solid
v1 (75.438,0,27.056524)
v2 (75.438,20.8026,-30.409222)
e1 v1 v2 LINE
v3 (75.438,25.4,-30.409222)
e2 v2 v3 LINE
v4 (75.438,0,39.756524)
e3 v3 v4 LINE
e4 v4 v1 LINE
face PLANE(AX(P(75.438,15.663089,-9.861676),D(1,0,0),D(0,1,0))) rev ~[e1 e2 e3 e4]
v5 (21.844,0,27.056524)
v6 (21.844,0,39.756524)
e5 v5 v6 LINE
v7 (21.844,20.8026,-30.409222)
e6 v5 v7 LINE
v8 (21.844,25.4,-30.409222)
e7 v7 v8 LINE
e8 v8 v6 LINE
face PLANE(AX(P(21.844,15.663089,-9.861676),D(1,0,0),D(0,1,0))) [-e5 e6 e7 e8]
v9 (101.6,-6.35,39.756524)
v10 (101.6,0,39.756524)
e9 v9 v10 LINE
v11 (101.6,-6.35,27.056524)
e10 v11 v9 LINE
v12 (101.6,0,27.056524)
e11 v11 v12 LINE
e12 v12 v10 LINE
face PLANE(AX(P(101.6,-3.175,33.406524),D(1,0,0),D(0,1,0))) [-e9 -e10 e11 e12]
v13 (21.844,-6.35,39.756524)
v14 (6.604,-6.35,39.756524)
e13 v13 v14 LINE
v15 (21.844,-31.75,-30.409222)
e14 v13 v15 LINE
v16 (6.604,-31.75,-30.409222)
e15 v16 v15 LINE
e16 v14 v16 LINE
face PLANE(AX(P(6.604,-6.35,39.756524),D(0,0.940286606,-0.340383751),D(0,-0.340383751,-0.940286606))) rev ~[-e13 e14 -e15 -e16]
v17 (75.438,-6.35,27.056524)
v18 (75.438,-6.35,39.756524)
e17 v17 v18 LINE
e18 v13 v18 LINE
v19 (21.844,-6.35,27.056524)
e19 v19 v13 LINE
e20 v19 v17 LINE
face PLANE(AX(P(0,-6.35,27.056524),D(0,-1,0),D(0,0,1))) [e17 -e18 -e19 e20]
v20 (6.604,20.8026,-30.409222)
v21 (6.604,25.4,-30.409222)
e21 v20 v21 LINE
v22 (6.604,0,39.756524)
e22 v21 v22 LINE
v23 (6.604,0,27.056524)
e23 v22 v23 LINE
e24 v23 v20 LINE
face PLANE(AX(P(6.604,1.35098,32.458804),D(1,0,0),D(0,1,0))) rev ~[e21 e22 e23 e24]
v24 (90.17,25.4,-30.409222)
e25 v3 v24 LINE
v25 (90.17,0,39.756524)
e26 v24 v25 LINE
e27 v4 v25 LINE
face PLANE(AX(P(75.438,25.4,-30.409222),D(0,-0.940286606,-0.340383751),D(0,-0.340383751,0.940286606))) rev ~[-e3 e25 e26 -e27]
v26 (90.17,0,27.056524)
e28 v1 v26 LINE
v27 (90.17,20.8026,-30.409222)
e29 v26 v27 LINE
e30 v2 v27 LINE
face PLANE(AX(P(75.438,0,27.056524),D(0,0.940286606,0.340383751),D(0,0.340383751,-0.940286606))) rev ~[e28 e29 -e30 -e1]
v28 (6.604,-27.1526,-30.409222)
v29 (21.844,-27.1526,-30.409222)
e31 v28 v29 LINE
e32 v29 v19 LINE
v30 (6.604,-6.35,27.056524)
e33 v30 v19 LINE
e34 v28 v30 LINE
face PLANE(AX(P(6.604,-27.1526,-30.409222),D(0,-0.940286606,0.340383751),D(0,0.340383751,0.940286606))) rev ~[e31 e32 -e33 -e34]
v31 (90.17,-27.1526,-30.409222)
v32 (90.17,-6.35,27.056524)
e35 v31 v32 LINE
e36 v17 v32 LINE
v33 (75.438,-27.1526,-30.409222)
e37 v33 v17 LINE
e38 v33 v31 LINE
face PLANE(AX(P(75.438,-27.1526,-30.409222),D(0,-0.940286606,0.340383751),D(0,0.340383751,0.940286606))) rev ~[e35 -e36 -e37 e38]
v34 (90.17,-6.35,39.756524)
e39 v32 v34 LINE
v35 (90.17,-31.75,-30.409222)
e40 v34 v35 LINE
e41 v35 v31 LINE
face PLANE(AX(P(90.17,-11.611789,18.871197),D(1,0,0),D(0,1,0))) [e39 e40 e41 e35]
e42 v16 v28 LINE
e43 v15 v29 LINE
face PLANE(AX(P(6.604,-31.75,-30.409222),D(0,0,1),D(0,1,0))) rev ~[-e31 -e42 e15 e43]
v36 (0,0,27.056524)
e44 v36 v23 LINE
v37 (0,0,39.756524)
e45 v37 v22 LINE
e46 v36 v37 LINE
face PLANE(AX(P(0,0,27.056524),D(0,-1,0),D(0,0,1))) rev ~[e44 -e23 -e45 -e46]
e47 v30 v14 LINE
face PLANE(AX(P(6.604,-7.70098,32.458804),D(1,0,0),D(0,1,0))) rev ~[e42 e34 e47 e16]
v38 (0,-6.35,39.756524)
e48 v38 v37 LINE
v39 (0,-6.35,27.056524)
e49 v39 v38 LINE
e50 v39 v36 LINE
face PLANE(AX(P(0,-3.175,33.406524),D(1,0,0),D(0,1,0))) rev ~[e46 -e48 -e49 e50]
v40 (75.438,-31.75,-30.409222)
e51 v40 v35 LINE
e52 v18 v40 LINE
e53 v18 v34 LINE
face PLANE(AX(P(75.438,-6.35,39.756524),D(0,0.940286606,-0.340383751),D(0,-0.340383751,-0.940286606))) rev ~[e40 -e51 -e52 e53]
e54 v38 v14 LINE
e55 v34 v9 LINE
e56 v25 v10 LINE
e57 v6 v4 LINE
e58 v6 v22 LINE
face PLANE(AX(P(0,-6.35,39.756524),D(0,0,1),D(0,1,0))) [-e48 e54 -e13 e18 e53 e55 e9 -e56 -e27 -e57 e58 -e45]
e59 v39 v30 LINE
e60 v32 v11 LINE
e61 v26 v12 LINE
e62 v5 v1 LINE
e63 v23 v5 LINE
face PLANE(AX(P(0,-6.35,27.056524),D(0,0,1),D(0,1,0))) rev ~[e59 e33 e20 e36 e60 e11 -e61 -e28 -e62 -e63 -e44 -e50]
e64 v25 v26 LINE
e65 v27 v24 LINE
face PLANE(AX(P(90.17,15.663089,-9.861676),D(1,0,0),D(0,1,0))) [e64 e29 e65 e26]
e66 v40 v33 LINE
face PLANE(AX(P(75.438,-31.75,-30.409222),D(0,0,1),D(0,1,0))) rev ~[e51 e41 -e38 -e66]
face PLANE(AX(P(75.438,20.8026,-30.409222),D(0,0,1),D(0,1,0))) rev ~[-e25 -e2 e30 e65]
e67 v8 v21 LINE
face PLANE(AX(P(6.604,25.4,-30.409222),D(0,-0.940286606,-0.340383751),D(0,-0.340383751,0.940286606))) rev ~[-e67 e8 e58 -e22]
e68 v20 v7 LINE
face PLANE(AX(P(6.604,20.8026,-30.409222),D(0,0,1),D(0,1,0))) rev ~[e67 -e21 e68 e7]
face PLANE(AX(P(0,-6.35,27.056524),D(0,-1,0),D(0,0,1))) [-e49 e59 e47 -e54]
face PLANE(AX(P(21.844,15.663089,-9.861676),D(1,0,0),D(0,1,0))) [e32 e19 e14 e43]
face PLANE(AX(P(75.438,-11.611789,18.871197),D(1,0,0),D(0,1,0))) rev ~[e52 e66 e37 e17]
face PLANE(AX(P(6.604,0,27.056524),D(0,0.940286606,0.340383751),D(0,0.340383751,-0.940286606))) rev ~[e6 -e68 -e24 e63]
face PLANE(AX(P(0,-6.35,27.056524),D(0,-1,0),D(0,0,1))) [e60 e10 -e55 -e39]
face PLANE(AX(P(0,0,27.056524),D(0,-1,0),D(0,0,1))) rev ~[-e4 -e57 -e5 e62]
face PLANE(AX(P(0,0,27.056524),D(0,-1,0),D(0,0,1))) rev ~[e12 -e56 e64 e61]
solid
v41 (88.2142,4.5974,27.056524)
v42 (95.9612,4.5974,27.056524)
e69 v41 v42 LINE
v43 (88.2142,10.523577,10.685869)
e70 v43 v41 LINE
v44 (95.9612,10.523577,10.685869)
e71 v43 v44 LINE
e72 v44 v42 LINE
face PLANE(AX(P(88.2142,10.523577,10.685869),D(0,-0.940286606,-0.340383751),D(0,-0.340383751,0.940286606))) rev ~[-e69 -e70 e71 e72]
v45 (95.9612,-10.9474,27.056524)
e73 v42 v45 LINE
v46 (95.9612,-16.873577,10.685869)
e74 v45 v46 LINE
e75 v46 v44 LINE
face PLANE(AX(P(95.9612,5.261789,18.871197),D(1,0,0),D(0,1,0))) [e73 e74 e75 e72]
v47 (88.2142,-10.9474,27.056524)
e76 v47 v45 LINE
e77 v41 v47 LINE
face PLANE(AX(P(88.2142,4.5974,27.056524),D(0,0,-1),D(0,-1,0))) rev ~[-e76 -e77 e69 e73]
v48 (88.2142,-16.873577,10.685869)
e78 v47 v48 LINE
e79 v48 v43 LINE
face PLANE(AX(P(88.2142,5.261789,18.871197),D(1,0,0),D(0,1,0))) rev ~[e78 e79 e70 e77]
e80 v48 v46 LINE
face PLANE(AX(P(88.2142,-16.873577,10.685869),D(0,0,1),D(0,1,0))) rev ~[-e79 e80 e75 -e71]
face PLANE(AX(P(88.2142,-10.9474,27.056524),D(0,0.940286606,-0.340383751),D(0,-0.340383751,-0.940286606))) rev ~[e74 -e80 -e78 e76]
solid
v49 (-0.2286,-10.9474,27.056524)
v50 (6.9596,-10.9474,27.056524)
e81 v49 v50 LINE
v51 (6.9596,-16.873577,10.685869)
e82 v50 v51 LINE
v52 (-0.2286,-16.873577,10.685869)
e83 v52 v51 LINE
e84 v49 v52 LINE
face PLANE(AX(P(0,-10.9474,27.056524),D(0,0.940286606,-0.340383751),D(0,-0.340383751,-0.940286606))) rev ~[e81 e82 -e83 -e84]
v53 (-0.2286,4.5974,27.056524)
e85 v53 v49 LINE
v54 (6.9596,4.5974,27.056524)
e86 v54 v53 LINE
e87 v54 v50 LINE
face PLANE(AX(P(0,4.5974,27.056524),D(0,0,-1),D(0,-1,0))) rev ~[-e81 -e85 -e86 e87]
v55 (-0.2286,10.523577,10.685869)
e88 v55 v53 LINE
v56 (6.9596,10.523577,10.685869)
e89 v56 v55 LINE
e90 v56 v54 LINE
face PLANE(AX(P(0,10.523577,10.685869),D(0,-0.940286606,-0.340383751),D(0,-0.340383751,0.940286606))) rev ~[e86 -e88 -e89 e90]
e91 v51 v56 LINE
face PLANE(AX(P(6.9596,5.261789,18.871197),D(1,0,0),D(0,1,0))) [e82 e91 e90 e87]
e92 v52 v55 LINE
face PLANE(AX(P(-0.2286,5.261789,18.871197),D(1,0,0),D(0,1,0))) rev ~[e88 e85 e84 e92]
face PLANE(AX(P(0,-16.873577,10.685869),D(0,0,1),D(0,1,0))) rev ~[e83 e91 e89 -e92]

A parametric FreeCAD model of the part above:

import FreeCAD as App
import Part
import Sketcher
Q = App.Units.Quantity


def add_polygon(sketch, points):
    """Adds a closed chain of lines whose ends are joined by coincident constraints."""
    first, n = sketch.GeometryCount, len(points)
    for a, b in zip(points, points[1:] + points[:1]):
        sketch.addGeometry(Part.LineSegment(App.Vector(*a, 0), App.Vector(*b, 0)), False)
    for i in range(n):
        sketch.addConstraint(Sketcher.Constraint("Coincident", first + i, 2, first + (i + 1) % n, 1))

doc = App.newDocument("Part")
body = doc.addObject("PartDesign::Body", "Body")

# Sketch on YZ plane
sketch1 = body.newObject("Sketcher::SketchObject", "Sketch")
sketch1.AttachmentSupport = (doc.getObject("YZ_Plane"), [""])
sketch1.MapMode = "FlatFace"
add_polygon(sketch1, [(-6, 40), (-6, 27), (0, 27), (0, 40)])  # lines 0-3
sketch1.addConstraint(Sketcher.Constraint("Vertical", 0))
sketch1.addConstraint(Sketcher.Constraint("Horizontal", 1))
sketch1.addConstraint(Sketcher.Constraint("Vertical", 2))
sketch1.addConstraint(Sketcher.Constraint("Horizontal", 3))
sketch1.addConstraint(Sketcher.Constraint("PointOnObject", 1, 2, -2))
sketch1.addConstraint(Sketcher.Constraint("DistanceY", 0, 2, 0, 1, Q("0.5 in")))
sketch1.addConstraint(Sketcher.Constraint("DistanceX", 1, 1, 1, 2, Q("0.25 in")))
sketch1.addConstraint(Sketcher.Constraint("DistanceY", -1, 1, 0, 2, 27.056524))
pad1 = body.newObject("PartDesign::Pad", "Pad")
pad1.Profile = sketch1
pad1.Length = Q("4 in")

# Sketch on YZ plane
sketch2 = body.newObject("Sketcher::SketchObject", "Sketch001")
sketch2.AttachmentSupport = (doc.getObject("YZ_Plane"), [""])
sketch2.MapMode = "FlatFace"
sketch2.AttachmentOffset = App.Placement(App.Vector(0, 0, 0.26 * 25.4), App.Rotation())
add_polygon(sketch2, [(-6.3, 27.1), (-6.3, 39.8), (-31.8, -30.4), (-27.2, -30.4)])  # lines 0-3
add_polygon(sketch2, [(0, 39.8), (0, 27.1), (20.8, -30.4), (25.4, -30.4)])  # lines 4-7
sketch2.addConstraint(Sketcher.Constraint("Vertical", 0))
sketch2.addConstraint(Sketcher.Constraint("Horizontal", 2))
sketch2.addConstraint(Sketcher.Constraint("Vertical", 4))
sketch2.addConstraint(Sketcher.Constraint("Horizontal", 6))
sketch2.addConstraint(Sketcher.Constraint("PointOnObject", 4, 2, -2))
sketch2.addConstraint(Sketcher.Constraint("Parallel", 1, 3))
sketch2.addConstraint(Sketcher.Constraint("Parallel", 5, 7))
sketch2.addConstraint(Sketcher.Constraint("Horizontal", 3, 2, 4, 2))
sketch2.addConstraint(Sketcher.Constraint("Horizontal", 2, 2, 5, 2))
sketch2.addConstraint(Sketcher.Constraint("Horizontal", 0, 2, 7, 2))
sketch2.addConstraint(Sketcher.Constraint("Equal", 2, 6))
sketch2.addConstraint(Sketcher.Constraint("DistanceY", 0, 1, 0, 2, Q("0.5 in")))
sketch2.addConstraint(Sketcher.Constraint("DistanceX", -1, 1, 6, 2, Q("1 in")))
sketch2.addConstraint(Sketcher.Constraint("DistanceX", 2, 1, 2, 2, Q("0.181 in")))
sketch2.addConstraint(Sketcher.Constraint("DistanceX", 0, 2, -1, 1, Q("0.25 in")))
sketch2.addConstraint(Sketcher.Constraint("DistanceY", 1, 2, -1, 1, 30.409222))
pad2 = body.newObject("PartDesign::Pad", "Pad001")
pad2.Profile = sketch2
pad2.Length = Q("0.56 in")

# Sketch on YZ plane
sketch3 = body.newObject("Sketcher::SketchObject", "Sketch002")
sketch3.AttachmentSupport = (doc.getObject("YZ_Plane"), [""])
sketch3.MapMode = "FlatFace"
sketch3.AttachmentOffset = App.Placement(App.Vector(0, 0, 2.97 * 25.4), App.Rotation())
add_polygon(sketch3, [(20.8, -30.4), (25.4, -30.4), (0, 39.8), (0, 27.1)])  # lines 0-3
add_polygon(sketch3, [(-6.3, 27.1), (-6.3, 39.8), (-31.8, -30.4), (-27.2, -30.4)])  # lines 4-7
sketch3.addConstraint(Sketcher.Constraint("Horizontal", 0))
sketch3.addConstraint(Sketcher.Constraint("Vertical", 2))
sketch3.addConstraint(Sketcher.Constraint("Vertical", 4))
sketch3.addConstraint(Sketcher.Constraint("Horizontal", 6))
sketch3.addConstraint(Sketcher.Constraint("PointOnObject", 1, 2, -2))
sketch3.addConstraint(Sketcher.Constraint("Parallel", 1, 3))
sketch3.addConstraint(Sketcher.Constraint("Parallel", 5, 7))
sketch3.addConstraint(Sketcher.Constraint("Horizontal", 1, 2, 4, 2))
sketch3.addConstraint(Sketcher.Constraint("Horizontal", 3, 2, 5, 2))
sketch3.addConstraint(Sketcher.Constraint("Horizontal", 2, 2, 7, 2))
sketch3.addConstraint(Sketcher.Constraint("Equal", 0, 6))
sketch3.addConstraint(Sketcher.Constraint("DistanceY", 2, 2, 2, 1, Q("0.5 in")))
sketch3.addConstraint(Sketcher.Constraint("DistanceX", -1, 1, 0, 2, Q("1 in")))
sketch3.addConstraint(Sketcher.Constraint("DistanceX", 0, 1, 0, 2, Q("0.181 in")))
sketch3.addConstraint(Sketcher.Constraint("DistanceX", 4, 2, -1, 1, Q("0.25 in")))
sketch3.addConstraint(Sketcher.Constraint("DistanceY", 0, 2, -1, 1, 30.409222))
pad3 = body.newObject("PartDesign::Pad", "Pad002")
pad3.Profile = sketch3
pad3.Length = Q("0.58 in")

# Sketch on YZ plane
sketch4 = body.newObject("Sketcher::SketchObject", "Sketch003")
sketch4.AttachmentSupport = (doc.getObject("YZ_Plane"), [""])
sketch4.MapMode = "FlatFace"
sketch4.AttachmentOffset = App.Placement(App.Vector(0, 0, 0.26 * 25.4), App.Rotation())
add_polygon(sketch4, [(20.8, -30.4), (25.4, -30.4), (0, 39.8), (-6.3, 39.8), (-31.8, -30.4), (-27.2, -30.4), (-6.3, 27.1), (0, 27.1)])  # lines 0-7
sketch4.addConstraint(Sketcher.Constraint("Horizontal", 0))
sketch4.addConstraint(Sketcher.Constraint("Horizontal", 2))
sketch4.addConstraint(Sketcher.Constraint("Horizontal", 4))
sketch4.addConstraint(Sketcher.Constraint("Horizontal", 6))
sketch4.addConstraint(Sketcher.Constraint("PointOnObject", 1, 2, -2))
sketch4.addConstraint(Sketcher.Constraint("PointOnObject", 6, 2, -2))
sketch4.addConstraint(Sketcher.Constraint("Parallel", 3, 5))
sketch4.addConstraint(Sketcher.Constraint("Parallel", 1, 7))
sketch4.addConstraint(Sketcher.Constraint("Horizontal", 0, 2, 3, 2))
sketch4.addConstraint(Sketcher.Constraint("Vertical", 2, 2, 5, 2))
sketch4.addConstraint(Sketcher.Constraint("Equal", 0, 4))
sketch4.addConstraint(Sketcher.Constraint("DistanceX", -1, 1, 0, 2, Q("1 in")))
sketch4.addConstraint(Sketcher.Constraint("DistanceX", 2, 2, 2, 1, Q("0.25 in")))
sketch4.addConstraint(Sketcher.Constraint("DistanceY", 5, 2, 2, 2, Q("0.5 in")))
sketch4.addConstraint(Sketcher.Constraint("DistanceX", 0, 1, 0, 2, Q("0.181 in")))
sketch4.addConstraint(Sketcher.Constraint("DistanceY", 0, 2, -1, 1, 30.409222))
pad4 = body.newObject("PartDesign::Pad", "Pad003")
pad4.Profile = sketch4
pad4.Length = Q("0.6 in")
body2 = doc.addObject("PartDesign::Body", "Body001")

# Sketch on YZ plane
sketch5 = body2.newObject("Sketcher::SketchObject", "Sketch004")
sketch5.AttachmentSupport = (doc.getObject("YZ_Plane001"), [""])
sketch5.MapMode = "FlatFace"
add_polygon(sketch5, [(5, 27), (-11, 27), (-17, 11), (11, 11)])  # lines 0-3
sketch5.addConstraint(Sketcher.Constraint("Horizontal", 0))
sketch5.addConstraint(Sketcher.Constraint("Horizontal", 2))
sketch5.addConstraint(Sketcher.Constraint("Equal", 1, 3))
sketch5.addConstraint(Sketcher.Constraint("DistanceX", 0, 2, 0, 1, Q("0.612 in")))
sketch5.addConstraint(Sketcher.Constraint("DistanceX", 0, 2, -1, 1, Q("0.431 in")))
sketch5.addConstraint(Sketcher.Constraint("DistanceX", 2, 1, 2, 2, 27.397154))
sketch5.addConstraint(Sketcher.Constraint("DistanceY", -1, 1, 1, 2, 10.685869))
sketch5.addConstraint(Sketcher.Constraint("Distance", 1, 17.410282))
pad5 = body2.newObject("PartDesign::Pad", "Pad004")
pad5.Profile = sketch5
pad5.Type = "TwoLengths"
pad5.Length = Q("0.009 in")
pad5.Length2 = Q("0.274 in")
pad5.Reversed = True
body3 = doc.addObject("PartDesign::Body", "Body002")

# Sketch on YZ plane
sketch6 = body3.newObject("Sketcher::SketchObject", "Sketch005")
sketch6.AttachmentSupport = (doc.getObject("YZ_Plane002"), [""])
sketch6.MapMode = "FlatFace"
sketch6.AttachmentOffset = App.Placement(App.Vector(0, 0, 3.473 * 25.4), App.Rotation())
add_polygon(sketch6, [(5, 27), (-11, 27), (-17, 11), (11, 11)])  # lines 0-3
sketch6.addConstraint(Sketcher.Constraint("Horizontal", 0))
sketch6.addConstraint(Sketcher.Constraint("Horizontal", 2))
sketch6.addConstraint(Sketcher.Constraint("Equal", 1, 3))
sketch6.addConstraint(Sketcher.Constraint("DistanceX", 0, 2, 0, 1, Q("0.612 in")))
sketch6.addConstraint(Sketcher.Constraint("DistanceX", 0, 2, -1, 1, Q("0.431 in")))
sketch6.addConstraint(Sketcher.Constraint("DistanceX", 2, 1, 2, 2, 27.397154))
sketch6.addConstraint(Sketcher.Constraint("DistanceY", -1, 1, 1, 2, 10.685869))
sketch6.addConstraint(Sketcher.Constraint("Distance", 1, 17.410282))
pad6 = body3.newObject("PartDesign::Pad", "Pad005")
pad6.Profile = sketch6
pad6.Length = Q("0.305 in")

doc.recompute()
